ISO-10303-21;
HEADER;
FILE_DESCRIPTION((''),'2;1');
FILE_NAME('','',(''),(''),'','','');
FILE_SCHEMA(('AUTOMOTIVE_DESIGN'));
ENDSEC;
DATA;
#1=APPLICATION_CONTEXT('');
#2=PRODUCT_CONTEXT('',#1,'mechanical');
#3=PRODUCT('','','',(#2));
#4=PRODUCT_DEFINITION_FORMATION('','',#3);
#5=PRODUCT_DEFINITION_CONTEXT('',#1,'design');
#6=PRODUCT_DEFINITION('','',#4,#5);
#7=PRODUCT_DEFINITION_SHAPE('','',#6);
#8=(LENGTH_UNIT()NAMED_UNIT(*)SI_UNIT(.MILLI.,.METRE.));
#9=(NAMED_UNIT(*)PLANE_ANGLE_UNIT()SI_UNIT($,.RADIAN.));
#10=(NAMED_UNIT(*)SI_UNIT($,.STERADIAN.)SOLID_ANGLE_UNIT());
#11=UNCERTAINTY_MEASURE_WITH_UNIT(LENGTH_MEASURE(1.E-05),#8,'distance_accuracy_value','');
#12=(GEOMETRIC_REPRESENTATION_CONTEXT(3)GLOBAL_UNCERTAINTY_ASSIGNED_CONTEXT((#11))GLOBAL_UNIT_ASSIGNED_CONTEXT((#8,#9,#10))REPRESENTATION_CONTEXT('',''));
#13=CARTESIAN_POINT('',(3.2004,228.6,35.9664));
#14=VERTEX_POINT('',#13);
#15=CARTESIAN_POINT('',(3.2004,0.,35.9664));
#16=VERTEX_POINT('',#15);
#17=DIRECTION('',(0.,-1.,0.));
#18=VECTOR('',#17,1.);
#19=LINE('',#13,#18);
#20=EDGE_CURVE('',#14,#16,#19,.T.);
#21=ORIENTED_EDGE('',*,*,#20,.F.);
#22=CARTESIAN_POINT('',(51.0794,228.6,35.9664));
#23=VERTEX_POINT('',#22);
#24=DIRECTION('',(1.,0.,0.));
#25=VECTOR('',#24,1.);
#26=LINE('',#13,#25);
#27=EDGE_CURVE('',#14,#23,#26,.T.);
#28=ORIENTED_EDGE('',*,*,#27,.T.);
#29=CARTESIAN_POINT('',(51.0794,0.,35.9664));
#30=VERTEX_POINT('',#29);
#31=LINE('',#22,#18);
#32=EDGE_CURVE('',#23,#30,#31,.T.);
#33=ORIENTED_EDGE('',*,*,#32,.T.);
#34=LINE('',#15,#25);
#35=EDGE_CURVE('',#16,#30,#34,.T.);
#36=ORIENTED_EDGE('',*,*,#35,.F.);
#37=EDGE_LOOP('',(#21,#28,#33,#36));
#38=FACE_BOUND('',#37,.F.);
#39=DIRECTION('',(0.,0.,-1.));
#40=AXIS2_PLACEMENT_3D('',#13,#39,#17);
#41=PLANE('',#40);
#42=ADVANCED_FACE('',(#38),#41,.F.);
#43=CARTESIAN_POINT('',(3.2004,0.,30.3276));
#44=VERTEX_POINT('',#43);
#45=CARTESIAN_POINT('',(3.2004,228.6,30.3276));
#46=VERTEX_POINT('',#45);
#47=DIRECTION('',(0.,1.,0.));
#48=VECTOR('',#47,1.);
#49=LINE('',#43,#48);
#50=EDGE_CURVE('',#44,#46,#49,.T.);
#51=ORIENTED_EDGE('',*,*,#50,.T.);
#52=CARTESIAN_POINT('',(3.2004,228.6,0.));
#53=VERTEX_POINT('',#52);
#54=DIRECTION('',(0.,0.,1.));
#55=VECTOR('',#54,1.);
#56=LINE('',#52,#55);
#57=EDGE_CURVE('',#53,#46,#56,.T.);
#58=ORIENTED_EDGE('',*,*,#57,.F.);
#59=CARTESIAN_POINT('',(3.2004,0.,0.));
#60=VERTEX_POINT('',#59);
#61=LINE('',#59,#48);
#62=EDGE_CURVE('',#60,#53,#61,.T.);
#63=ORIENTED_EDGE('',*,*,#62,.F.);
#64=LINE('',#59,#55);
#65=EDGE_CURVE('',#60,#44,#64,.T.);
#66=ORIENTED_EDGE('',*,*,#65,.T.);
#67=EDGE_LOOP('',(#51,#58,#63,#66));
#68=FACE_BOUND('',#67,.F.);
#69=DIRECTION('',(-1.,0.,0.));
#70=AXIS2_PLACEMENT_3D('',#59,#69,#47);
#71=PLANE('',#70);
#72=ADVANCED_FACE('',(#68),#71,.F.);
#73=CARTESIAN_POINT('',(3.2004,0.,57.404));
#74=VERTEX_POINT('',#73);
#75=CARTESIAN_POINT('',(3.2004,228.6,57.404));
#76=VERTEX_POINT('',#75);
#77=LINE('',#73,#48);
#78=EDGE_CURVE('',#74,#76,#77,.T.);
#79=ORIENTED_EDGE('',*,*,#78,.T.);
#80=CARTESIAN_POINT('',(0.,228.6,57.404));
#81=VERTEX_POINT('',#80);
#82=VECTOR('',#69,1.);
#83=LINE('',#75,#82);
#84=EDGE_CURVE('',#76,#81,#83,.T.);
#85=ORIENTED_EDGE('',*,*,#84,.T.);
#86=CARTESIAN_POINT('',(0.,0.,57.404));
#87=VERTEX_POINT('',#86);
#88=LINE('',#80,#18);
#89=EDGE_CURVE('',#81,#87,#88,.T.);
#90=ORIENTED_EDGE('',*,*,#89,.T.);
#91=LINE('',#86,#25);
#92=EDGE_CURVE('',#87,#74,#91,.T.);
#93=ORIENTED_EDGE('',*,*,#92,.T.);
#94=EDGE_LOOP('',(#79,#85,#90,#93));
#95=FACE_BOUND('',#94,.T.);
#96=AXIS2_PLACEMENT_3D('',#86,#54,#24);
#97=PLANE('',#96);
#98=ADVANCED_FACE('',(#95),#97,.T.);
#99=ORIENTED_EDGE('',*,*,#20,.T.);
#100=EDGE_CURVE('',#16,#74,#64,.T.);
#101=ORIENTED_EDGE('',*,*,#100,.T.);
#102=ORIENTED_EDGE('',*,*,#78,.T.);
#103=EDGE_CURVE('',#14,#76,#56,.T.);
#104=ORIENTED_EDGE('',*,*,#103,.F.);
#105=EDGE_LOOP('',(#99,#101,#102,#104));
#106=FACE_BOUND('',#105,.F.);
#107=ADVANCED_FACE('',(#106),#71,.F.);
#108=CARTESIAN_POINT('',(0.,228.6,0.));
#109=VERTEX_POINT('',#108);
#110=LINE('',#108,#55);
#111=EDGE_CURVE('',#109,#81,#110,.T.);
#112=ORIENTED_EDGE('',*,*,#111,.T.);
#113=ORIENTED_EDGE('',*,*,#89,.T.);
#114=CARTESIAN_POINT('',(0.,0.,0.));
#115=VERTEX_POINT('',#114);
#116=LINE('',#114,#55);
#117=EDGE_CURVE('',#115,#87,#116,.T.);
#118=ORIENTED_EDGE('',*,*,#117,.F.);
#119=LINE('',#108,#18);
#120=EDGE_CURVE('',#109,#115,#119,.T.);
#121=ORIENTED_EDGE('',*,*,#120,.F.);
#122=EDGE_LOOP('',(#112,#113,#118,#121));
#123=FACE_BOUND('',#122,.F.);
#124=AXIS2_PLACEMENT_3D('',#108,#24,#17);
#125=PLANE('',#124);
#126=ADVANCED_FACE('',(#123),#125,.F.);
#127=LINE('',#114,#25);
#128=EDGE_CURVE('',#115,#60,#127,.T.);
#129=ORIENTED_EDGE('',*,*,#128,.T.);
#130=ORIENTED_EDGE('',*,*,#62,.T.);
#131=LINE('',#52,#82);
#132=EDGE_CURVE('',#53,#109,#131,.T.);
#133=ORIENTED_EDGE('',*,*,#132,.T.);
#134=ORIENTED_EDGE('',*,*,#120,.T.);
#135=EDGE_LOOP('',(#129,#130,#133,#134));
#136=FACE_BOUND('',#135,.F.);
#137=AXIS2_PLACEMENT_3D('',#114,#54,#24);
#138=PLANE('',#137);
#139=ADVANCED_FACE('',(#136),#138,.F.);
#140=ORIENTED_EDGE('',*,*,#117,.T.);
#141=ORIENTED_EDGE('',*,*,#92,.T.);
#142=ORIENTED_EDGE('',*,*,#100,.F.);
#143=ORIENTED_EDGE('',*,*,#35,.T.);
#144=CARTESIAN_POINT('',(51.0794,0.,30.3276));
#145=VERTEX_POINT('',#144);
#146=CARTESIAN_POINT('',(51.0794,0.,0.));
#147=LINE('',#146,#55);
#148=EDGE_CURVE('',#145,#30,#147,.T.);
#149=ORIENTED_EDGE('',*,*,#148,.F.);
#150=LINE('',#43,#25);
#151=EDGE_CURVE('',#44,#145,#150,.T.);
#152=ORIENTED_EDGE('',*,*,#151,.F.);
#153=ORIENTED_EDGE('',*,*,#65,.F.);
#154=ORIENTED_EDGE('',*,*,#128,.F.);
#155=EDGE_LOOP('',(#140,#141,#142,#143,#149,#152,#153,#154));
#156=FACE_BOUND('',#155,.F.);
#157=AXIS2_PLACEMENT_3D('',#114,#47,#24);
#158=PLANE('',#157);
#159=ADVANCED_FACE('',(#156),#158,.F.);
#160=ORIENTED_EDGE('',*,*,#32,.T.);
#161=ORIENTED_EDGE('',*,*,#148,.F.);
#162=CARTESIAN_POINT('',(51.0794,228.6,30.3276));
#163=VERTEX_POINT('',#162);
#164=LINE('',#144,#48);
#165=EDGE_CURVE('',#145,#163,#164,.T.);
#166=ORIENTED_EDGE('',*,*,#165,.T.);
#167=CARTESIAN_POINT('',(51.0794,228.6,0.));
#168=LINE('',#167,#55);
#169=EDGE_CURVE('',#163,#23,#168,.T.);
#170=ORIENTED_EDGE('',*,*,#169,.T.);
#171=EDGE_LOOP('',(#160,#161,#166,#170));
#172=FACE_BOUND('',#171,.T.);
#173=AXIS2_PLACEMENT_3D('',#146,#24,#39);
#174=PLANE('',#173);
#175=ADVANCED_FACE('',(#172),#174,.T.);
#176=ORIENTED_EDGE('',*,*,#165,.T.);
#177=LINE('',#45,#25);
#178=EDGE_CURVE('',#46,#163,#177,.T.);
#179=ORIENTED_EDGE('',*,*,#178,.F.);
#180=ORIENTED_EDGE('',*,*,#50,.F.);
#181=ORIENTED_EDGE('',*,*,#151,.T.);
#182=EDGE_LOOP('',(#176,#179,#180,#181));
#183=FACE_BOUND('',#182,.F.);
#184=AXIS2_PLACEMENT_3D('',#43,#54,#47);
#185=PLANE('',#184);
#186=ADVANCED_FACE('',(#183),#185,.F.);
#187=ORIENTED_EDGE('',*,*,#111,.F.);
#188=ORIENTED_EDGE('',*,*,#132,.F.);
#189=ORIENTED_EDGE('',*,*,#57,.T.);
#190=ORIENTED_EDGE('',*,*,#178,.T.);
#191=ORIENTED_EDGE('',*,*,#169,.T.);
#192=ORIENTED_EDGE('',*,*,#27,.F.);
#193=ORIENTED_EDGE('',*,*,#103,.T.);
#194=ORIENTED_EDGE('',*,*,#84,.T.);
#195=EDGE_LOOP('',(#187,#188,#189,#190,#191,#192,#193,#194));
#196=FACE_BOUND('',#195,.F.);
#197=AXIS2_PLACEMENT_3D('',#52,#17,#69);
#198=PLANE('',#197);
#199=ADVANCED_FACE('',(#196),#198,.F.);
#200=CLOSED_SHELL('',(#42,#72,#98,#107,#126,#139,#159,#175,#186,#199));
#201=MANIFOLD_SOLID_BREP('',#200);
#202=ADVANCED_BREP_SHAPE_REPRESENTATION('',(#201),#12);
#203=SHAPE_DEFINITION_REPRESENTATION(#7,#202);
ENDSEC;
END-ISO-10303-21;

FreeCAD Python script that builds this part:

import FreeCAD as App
import Part
import Sketcher
from FreeCAD import Vector
Q = App.Units.Quantity


def add_polygon(sketch, points):
    """Adds a closed chain of lines whose ends are joined by coincident constraints."""
    first, n = sketch.GeometryCount, len(points)
    for a, b in zip(points, points[1:] + points[:1]):
        sketch.addGeometry(Part.LineSegment(App.Vector(*a, 0), App.Vector(*b, 0)), False)
    for i in range(n):
        sketch.addConstraint(Sketcher.Constraint("Coincident", first + i, 2, first + (i + 1) % n, 1))

doc = App.newDocument("Part")
body = doc.addObject("PartDesign::Body", "Body")

sketch1 = body.newObject("Sketcher::SketchObject", "Sketch")
sketch1.AttachmentSupport = (doc.getObject("XY_Plane"), [""])
sketch1.MapMode = "FlatFace"
add_polygon(sketch1, [(0, 228.6), (0, 0), (3.2, 0), (3.2, 228.6)])
sketch1.addConstraint(Sketcher.Constraint("Vertical", 0))
sketch1.addConstraint(Sketcher.Constraint("Horizontal", 1))
sketch1.addConstraint(Sketcher.Constraint("Vertical", 2))
sketch1.addConstraint(Sketcher.Constraint("Horizontal", 3))
sketch1.addConstraint(Sketcher.Constraint("Coincident", 0, 2, -1, 1))
sketch1.addConstraint(Sketcher.Constraint("DistanceY", 0, 2, 0, 1, Q("9 in")))
sketch1.addConstraint(Sketcher.Constraint("DistanceX", 1, 1, 1, 2, Q("0.126 in")))
pad1 = body.newObject("PartDesign::Pad", "Pad")
pad1.Profile = sketch1
pad1.Length = Q("2.26 in")

sketch2 = body.newObject("Sketcher::SketchObject", "Sketch001")
sketch2.AttachmentSupport = (doc.getObject("YZ_Plane"), [""])
sketch2.MapMode = "FlatFace"
sketch2.AttachmentOffset = App.Placement(Vector(0, 0, 0.126 * 25.4), App.Rotation())
add_polygon(sketch2, [(0, 36), (0, 30), (229, 30), (229, 36)])
sketch2.addConstraint(Sketcher.Constraint("Vertical", 0))
sketch2.addConstraint(Sketcher.Constraint("Horizontal", 1))
sketch2.addConstraint(Sketcher.Constraint("Vertical", 2))
sketch2.addConstraint(Sketcher.Constraint("Horizontal", 3))
sketch2.addConstraint(Sketcher.Constraint("PointOnObject", 0, 2, -2))
sketch2.addConstraint(Sketcher.Constraint("DistanceX", 1, 1, 1, 2, Q("9 in")))
sketch2.addConstraint(Sketcher.Constraint("DistanceY", 0, 2, 0, 1, Q("0.222 in")))
sketch2.addConstraint(Sketcher.Constraint("DistanceY", -1, 1, 0, 2, Q("1.194 in")))
pad2 = body.newObject("PartDesign::Pad", "Pad001")
pad2.Profile = sketch2
pad2.Length = Q("1.885 in")

doc.recompute()
